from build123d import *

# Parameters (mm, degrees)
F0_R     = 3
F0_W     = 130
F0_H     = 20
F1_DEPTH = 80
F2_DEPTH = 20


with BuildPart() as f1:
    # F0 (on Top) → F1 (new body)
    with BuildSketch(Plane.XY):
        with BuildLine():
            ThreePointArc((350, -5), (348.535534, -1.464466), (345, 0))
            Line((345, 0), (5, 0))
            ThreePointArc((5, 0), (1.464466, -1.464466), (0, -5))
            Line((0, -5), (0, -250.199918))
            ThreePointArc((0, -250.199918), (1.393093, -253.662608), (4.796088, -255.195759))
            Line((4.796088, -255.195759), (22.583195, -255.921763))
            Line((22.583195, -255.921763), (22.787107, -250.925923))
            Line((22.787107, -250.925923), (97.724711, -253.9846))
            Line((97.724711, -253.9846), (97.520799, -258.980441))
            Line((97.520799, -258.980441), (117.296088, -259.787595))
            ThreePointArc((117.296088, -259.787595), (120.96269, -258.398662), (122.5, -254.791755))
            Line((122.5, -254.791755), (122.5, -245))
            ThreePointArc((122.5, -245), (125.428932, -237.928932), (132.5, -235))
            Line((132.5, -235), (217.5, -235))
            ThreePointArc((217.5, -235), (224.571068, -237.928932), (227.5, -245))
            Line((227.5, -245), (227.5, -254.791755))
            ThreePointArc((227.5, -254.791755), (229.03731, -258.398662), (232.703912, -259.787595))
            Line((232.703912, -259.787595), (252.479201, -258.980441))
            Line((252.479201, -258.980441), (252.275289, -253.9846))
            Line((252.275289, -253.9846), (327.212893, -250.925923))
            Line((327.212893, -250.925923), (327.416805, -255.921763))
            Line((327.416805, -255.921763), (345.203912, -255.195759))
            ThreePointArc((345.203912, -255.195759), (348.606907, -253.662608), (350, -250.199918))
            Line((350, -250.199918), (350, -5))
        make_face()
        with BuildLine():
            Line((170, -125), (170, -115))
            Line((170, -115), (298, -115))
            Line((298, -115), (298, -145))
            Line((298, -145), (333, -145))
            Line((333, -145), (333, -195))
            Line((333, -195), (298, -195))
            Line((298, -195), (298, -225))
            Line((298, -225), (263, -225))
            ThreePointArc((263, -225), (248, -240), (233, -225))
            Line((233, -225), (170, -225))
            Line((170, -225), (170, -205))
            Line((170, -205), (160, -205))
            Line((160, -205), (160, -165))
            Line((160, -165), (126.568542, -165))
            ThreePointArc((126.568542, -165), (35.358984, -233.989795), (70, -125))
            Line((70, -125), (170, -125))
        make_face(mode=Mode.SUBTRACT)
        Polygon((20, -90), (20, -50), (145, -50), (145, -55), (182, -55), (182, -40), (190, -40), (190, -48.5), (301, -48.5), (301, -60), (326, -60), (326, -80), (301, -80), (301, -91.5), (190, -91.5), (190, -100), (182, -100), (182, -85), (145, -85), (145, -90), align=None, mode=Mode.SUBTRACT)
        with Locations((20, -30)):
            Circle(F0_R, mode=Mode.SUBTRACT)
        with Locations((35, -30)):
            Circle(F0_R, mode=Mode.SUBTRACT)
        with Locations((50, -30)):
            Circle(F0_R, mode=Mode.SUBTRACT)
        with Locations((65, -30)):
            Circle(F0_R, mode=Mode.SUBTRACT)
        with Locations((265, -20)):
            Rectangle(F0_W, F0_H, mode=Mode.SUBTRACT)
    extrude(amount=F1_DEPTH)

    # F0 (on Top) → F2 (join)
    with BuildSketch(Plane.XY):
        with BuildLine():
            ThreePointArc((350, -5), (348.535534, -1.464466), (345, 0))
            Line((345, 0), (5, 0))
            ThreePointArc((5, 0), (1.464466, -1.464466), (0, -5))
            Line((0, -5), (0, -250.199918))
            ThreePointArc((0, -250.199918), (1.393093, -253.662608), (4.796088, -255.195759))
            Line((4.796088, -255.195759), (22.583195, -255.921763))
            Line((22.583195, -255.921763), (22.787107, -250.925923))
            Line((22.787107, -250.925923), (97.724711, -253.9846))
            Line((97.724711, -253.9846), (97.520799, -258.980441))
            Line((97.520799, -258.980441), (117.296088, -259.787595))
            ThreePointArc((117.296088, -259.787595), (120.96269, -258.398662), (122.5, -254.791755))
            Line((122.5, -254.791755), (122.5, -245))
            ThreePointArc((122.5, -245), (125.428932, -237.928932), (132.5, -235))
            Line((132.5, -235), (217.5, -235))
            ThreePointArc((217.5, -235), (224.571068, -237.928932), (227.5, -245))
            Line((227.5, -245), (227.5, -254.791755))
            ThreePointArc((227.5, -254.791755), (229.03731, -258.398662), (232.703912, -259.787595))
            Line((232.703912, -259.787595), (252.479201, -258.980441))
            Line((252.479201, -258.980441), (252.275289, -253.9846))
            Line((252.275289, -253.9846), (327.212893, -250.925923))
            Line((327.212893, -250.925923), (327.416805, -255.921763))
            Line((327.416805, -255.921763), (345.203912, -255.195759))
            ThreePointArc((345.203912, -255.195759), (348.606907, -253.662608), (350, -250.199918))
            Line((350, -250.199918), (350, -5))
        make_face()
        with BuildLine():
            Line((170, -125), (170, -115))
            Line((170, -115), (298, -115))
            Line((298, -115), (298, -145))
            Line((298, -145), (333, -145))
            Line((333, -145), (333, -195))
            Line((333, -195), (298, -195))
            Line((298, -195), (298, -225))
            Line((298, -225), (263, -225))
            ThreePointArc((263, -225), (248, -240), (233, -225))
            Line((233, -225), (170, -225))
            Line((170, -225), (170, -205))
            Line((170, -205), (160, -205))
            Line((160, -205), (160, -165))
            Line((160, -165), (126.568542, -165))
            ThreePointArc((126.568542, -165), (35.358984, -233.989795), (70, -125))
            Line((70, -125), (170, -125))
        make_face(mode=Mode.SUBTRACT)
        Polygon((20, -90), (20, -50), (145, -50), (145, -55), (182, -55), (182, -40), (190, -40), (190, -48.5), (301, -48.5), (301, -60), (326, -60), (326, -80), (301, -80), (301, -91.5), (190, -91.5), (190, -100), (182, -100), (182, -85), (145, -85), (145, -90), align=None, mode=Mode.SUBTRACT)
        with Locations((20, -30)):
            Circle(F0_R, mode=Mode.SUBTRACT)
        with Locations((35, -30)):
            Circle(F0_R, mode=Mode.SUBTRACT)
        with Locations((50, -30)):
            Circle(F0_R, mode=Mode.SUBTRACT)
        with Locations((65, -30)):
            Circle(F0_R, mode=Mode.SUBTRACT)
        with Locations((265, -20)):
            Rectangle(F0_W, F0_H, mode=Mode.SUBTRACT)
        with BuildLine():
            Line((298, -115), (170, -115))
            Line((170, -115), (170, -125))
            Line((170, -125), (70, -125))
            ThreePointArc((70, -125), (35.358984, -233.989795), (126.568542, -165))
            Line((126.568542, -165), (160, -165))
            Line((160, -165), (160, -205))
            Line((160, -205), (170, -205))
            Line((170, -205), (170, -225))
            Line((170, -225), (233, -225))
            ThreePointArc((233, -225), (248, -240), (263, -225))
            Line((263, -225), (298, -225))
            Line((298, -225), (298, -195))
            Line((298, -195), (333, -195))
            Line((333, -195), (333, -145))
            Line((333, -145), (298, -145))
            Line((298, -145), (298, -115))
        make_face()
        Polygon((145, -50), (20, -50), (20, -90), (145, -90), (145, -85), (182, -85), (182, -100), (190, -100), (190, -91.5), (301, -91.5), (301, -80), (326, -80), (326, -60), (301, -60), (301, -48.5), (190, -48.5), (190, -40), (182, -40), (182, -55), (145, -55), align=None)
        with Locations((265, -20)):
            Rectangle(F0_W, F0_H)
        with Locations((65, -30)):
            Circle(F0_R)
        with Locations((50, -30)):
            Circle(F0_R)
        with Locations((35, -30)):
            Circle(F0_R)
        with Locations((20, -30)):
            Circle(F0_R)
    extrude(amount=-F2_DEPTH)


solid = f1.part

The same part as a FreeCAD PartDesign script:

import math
import FreeCAD as App
import Part
import Sketcher

doc = App.newDocument("Part")
body = doc.addObject("PartDesign::Body", "Body")

# Sketch on XY plane
sketch1 = body.newObject("Sketcher::SketchObject", "Sketch")
sketch1.AttachmentSupport = (doc.getObject("XY_Plane"), [""])
sketch1.MapMode = "FlatFace"
sketch1.addGeometry([
    Part.ArcOfCircle(Part.Circle(App.Vector(345, -5, 0), App.Vector(0, 0, 1), 5), math.radians(-0.000004), math.radians(90.000004)),  # 0
    Part.LineSegment(App.Vector(345, 0, 0), App.Vector(5, 0, 0)),  # 1
    Part.ArcOfCircle(Part.Circle(App.Vector(5, -5, 0), App.Vector(0, 0, 1), 5), math.radians(89.999996), math.radians(180.000004)),  # 2
    Part.LineSegment(App.Vector(0, -5, 0), App.Vector(0, -250.199918, 0)),  # 3
    Part.ArcOfCircle(Part.Circle(App.Vector(5.000001, -250.199918, 0), App.Vector(0, 0, 1), 5.000001), math.radians(-179.999994), math.radians(-92.337322)),  # 4
    Part.LineSegment(App.Vector(4.796088, -255.195759, 0), App.Vector(22.583195, -255.921763, 0)),  # 5
    Part.LineSegment(App.Vector(22.583195, -255.921763, 0), App.Vector(22.787107, -250.925923, 0)),  # 6
    Part.LineSegment(App.Vector(22.787107, -250.925923, 0), App.Vector(97.724711, -253.9846, 0)),  # 7
    Part.LineSegment(App.Vector(97.724711, -253.9846, 0), App.Vector(97.520799, -258.980441, 0)),  # 8
    Part.LineSegment(App.Vector(97.520799, -258.980441, 0), App.Vector(117.296088, -259.787595, 0)),  # 9
    Part.ArcOfCircle(Part.Circle(App.Vector(117.5, -254.791755, 0), App.Vector(0, 0, 1), 5), math.radians(-92.337313), math.radians(0.000002)),  # 10
    Part.LineSegment(App.Vector(122.5, -254.791755, 0), App.Vector(122.5, -245, 0)),  # 11
    Part.ArcOfCircle(Part.Circle(App.Vector(132.499999, -244.999999, 0), App.Vector(0, 0, 1), 9.999999), math.radians(89.999996), math.radians(180.000004)),  # 12
    Part.LineSegment(App.Vector(132.5, -235, 0), App.Vector(217.5, -235, 0)),  # 13
    Part.ArcOfCircle(Part.Circle(App.Vector(217.500001, -244.999999, 0), App.Vector(0, 0, 1), 9.999999), math.radians(-0.000004), math.radians(90.000004)),  # 14
    Part.LineSegment(App.Vector(227.5, -245, 0), App.Vector(227.5, -254.791755, 0)),  # 15
    Part.ArcOfCircle(Part.Circle(App.Vector(232.5, -254.791755, 0), App.Vector(0, 0, 1), 5), math.radians(179.999998), math.radians(272.337313)),  # 16
    Part.LineSegment(App.Vector(232.703912, -259.787595, 0), App.Vector(252.479201, -258.980441, 0)),  # 17
    Part.LineSegment(App.Vector(252.479201, -258.980441, 0), App.Vector(252.275289, -253.9846, 0)),  # 18
    Part.LineSegment(App.Vector(252.275289, -253.9846, 0), App.Vector(327.212893, -250.925923, 0)),  # 19
    Part.LineSegment(App.Vector(327.212893, -250.925923, 0), App.Vector(327.416805, -255.921763, 0)),  # 20
    Part.LineSegment(App.Vector(327.416805, -255.921763, 0), App.Vector(345.203912, -255.195759, 0)),  # 21
    Part.ArcOfCircle(Part.Circle(App.Vector(344.999999, -250.199918, 0), App.Vector(0, 0, 1), 5.000001), math.radians(-87.662678), math.radians(-0.000006)),  # 22
    Part.LineSegment(App.Vector(350, -250.199918, 0), App.Vector(350, -5, 0)),  # 23
    Part.LineSegment(App.Vector(70, -125, 0), App.Vector(170, -125, 0)),  # 24
    Part.LineSegment(App.Vector(170, -125, 0), App.Vector(170, -115, 0)),  # 25
    Part.LineSegment(App.Vector(170, -115, 0), App.Vector(298, -115, 0)),  # 26
    Part.LineSegment(App.Vector(298, -115, 0), App.Vector(298, -145, 0)),  # 27
    Part.LineSegment(App.Vector(298, -145, 0), App.Vector(333, -145, 0)),  # 28
    Part.LineSegment(App.Vector(333, -145, 0), App.Vector(333, -195, 0)),  # 29
    Part.LineSegment(App.Vector(333, -195, 0), App.Vector(298, -195, 0)),  # 30
    Part.LineSegment(App.Vector(298, -195, 0), App.Vector(298, -225, 0)),  # 31
    Part.LineSegment(App.Vector(298, -225, 0), App.Vector(263, -225, 0)),  # 32
    Part.ArcOfCircle(Part.Circle(App.Vector(248, -225, 0), App.Vector(0, 0, 1), 15), math.radians(180), math.radians(360)),  # 33
    Part.LineSegment(App.Vector(233, -225, 0), App.Vector(170, -225, 0)),  # 34
    Part.LineSegment(App.Vector(170, -225, 0), App.Vector(170, -205, 0)),  # 35
    Part.LineSegment(App.Vector(170, -205, 0), App.Vector(160, -205, 0)),  # 36
    Part.LineSegment(App.Vector(160, -205, 0), App.Vector(160, -165, 0)),  # 37
    Part.LineSegment(App.Vector(160, -165, 0), App.Vector(126.568542, -165, 0)),  # 38
    Part.ArcOfCircle(Part.Circle(App.Vector(70, -185, 0), App.Vector(0, 0, 1), 60), math.radians(90), math.radians(379.471221)),  # 39
    Part.Circle(App.Vector(20, -30, 0), App.Vector(0, 0, 1), 3),  # 40
    Part.Circle(App.Vector(35, -30, 0), App.Vector(0, 0, 1), 3),  # 41
    Part.Circle(App.Vector(50, -30, 0), App.Vector(0, 0, 1), 3),  # 42
    Part.Circle(App.Vector(65, -30, 0), App.Vector(0, 0, 1), 3),  # 43
    Part.LineSegment(App.Vector(145, -90, 0), App.Vector(20, -90, 0)),  # 44
    Part.LineSegment(App.Vector(20, -90, 0), App.Vector(20, -50, 0)),  # 45
    Part.LineSegment(App.Vector(20, -50, 0), App.Vector(145, -50, 0)),  # 46
    Part.LineSegment(App.Vector(145, -50, 0), App.Vector(145, -55, 0)),  # 47
    Part.LineSegment(App.Vector(145, -55, 0), App.Vector(182, -55, 0)),  # 48
    Part.LineSegment(App.Vector(182, -55, 0), App.Vector(182, -40, 0)),  # 49
    Part.LineSegment(App.Vector(182, -40, 0), App.Vector(190, -40, 0)),  # 50
    Part.LineSegment(App.Vector(190, -40, 0), App.Vector(190, -48.5, 0)),  # 51
    Part.LineSegment(App.Vector(190, -48.5, 0), App.Vector(301, -48.5, 0)),  # 52
    Part.LineSegment(App.Vector(301, -48.5, 0), App.Vector(301, -60, 0)),  # 53
    Part.LineSegment(App.Vector(301, -60, 0), App.Vector(326, -60, 0)),  # 54
    Part.LineSegment(App.Vector(326, -60, 0), App.Vector(326, -80, 0)),  # 55
    Part.LineSegment(App.Vector(326, -80, 0), App.Vector(301, -80, 0)),  # 56
    Part.LineSegment(App.Vector(301, -80, 0), App.Vector(301, -91.5, 0)),  # 57
    Part.LineSegment(App.Vector(301, -91.5, 0), App.Vector(190, -91.5, 0)),  # 58
    Part.LineSegment(App.Vector(190, -91.5, 0), App.Vector(190, -100, 0)),  # 59
    Part.LineSegment(App.Vector(190, -100, 0), App.Vector(182, -100, 0)),  # 60
    Part.LineSegment(App.Vector(182, -100, 0), App.Vector(182, -85, 0)),  # 61
    Part.LineSegment(App.Vector(182, -85, 0), App.Vector(145, -85, 0)),  # 62
    Part.LineSegment(App.Vector(145, -85, 0), App.Vector(145, -90, 0)),  # 63
    Part.LineSegment(App.Vector(330, -30, 0), App.Vector(200, -30, 0)),  # 64
    Part.LineSegment(App.Vector(200, -30, 0), App.Vector(200, -10, 0)),  # 65
    Part.LineSegment(App.Vector(200, -10, 0), App.Vector(330, -10, 0)),  # 66
    Part.LineSegment(App.Vector(330, -10, 0), App.Vector(330, -30, 0)),  # 67
], False)
sketch1.addConstraint([
    Sketcher.Constraint("Tangent", 0, 2, 1, 1),
    Sketcher.Constraint("Tangent", 1, 2, 2, 1),
    Sketcher.Constraint("Tangent", 2, 2, 3, 1),
    Sketcher.Constraint("Tangent", 3, 2, 4, 1),
    Sketcher.Constraint("Tangent", 4, 2, 5, 1),
    Sketcher.Constraint("Coincident", 5, 2, 6, 1),
    Sketcher.Constraint("Coincident", 6, 2, 7, 1),
    Sketcher.Constraint("Coincident", 7, 2, 8, 1),
    Sketcher.Constraint("Coincident", 8, 2, 9, 1),
    Sketcher.Constraint("Tangent", 9, 2, 10, 1),
    Sketcher.Constraint("Tangent", 10, 2, 11, 1),
    Sketcher.Constraint("Tangent", 11, 2, 12, 2),
    Sketcher.Constraint("Tangent", 12, 1, 13, 1),
    Sketcher.Constraint("Tangent", 13, 2, 14, 2),
    Sketcher.Constraint("Tangent", 14, 1, 15, 1),
    Sketcher.Constraint("Tangent", 15, 2, 16, 1),
    Sketcher.Constraint("Tangent", 16, 2, 17, 1),
    Sketcher.Constraint("Coincident", 17, 2, 18, 1),
    Sketcher.Constraint("Coincident", 18, 2, 19, 1),
    Sketcher.Constraint("Coincident", 19, 2, 20, 1),
    Sketcher.Constraint("Coincident", 20, 2, 21, 1),
    Sketcher.Constraint("Tangent", 21, 2, 22, 1),
    Sketcher.Constraint("Tangent", 22, 2, 23, 1),
    Sketcher.Constraint("Tangent", 23, 2, 0, 1),
    Sketcher.Constraint("Coincident", 24, 2, 25, 1),
    Sketcher.Constraint("Coincident", 25, 2, 26, 1),
    Sketcher.Constraint("Coincident", 26, 2, 27, 1),
    Sketcher.Constraint("Coincident", 27, 2, 28, 1),
    Sketcher.Constraint("Coincident", 28, 2, 29, 1),
    Sketcher.Constraint("Coincident", 29, 2, 30, 1),
    Sketcher.Constraint("Coincident", 30, 2, 31, 1),
    Sketcher.Constraint("Coincident", 31, 2, 32, 1),
    Sketcher.Constraint("Coincident", 32, 2, 33, 2),
    Sketcher.Constraint("Coincident", 33, 1, 34, 1),
    Sketcher.Constraint("Coincident", 34, 2, 35, 1),
    Sketcher.Constraint("Coincident", 35, 2, 36, 1),
    Sketcher.Constraint("Coincident", 36, 2, 37, 1),
    Sketcher.Constraint("Coincident", 37, 2, 38, 1),
    Sketcher.Constraint("Coincident", 38, 2, 39, 2),
    Sketcher.Constraint("Tangent", 39, 1, 24, 1),
    Sketcher.Constraint("Coincident", 44, 2, 45, 1),
    Sketcher.Constraint("Coincident", 45, 2, 46, 1),
    Sketcher.Constraint("Coincident", 46, 2, 47, 1),
    Sketcher.Constraint("Coincident", 47, 2, 48, 1),
    Sketcher.Constraint("Coincident", 48, 2, 49, 1),
    Sketcher.Constraint("Coincident", 49, 2, 50, 1),
    Sketcher.Constraint("Coincident", 50, 2, 51, 1),
    Sketcher.Constraint("Coincident", 51, 2, 52, 1),
    Sketcher.Constraint("Coincident", 52, 2, 53, 1),
    Sketcher.Constraint("Coincident", 53, 2, 54, 1),
    Sketcher.Constraint("Coincident", 54, 2, 55, 1),
    Sketcher.Constraint("Coincident", 55, 2, 56, 1),
    Sketcher.Constraint("Coincident", 56, 2, 57, 1),
    Sketcher.Constraint("Coincident", 57, 2, 58, 1),
    Sketcher.Constraint("Coincident", 58, 2, 59, 1),
    Sketcher.Constraint("Coincident", 59, 2, 60, 1),
    Sketcher.Constraint("Coincident", 60, 2, 61, 1),
    Sketcher.Constraint("Coincident", 61, 2, 62, 1),
    Sketcher.Constraint("Coincident", 62, 2, 63, 1),
    Sketcher.Constraint("Coincident", 63, 2, 44, 1),
    Sketcher.Constraint("Coincident", 64, 2, 65, 1),
    Sketcher.Constraint("Coincident", 65, 2, 66, 1),
    Sketcher.Constraint("Coincident", 66, 2, 67, 1),
    Sketcher.Constraint("Coincident", 67, 2, 64, 1),
    Sketcher.Constraint("Horizontal", 1),
    Sketcher.Constraint("Vertical", 3),
    Sketcher.Constraint("Vertical", 11),
    Sketcher.Constraint("Horizontal", 13),
    Sketcher.Constraint("Vertical", 15),
    Sketcher.Constraint("Vertical", 23),
    Sketcher.Constraint("Horizontal", 24),
    Sketcher.Constraint("Vertical", 25),
    Sketcher.Constraint("Horizontal", 26),
    Sketcher.Constraint("Vertical", 27),
    Sketcher.Constraint("Horizontal", 28),
    Sketcher.Constraint("Vertical", 29),
    Sketcher.Constraint("Horizontal", 30),
    Sketcher.Constraint("Vertical", 31),
    Sketcher.Constraint("Horizontal", 32),
    Sketcher.Constraint("Horizontal", 34),
    Sketcher.Constraint("Vertical", 35),
    Sketcher.Constraint("Horizontal", 36),
    Sketcher.Constraint("Vertical", 37),
    Sketcher.Constraint("Horizontal", 38),
    Sketcher.Constraint("Horizontal", 44),
    Sketcher.Constraint("Vertical", 45),
    Sketcher.Constraint("Horizontal", 46),
    Sketcher.Constraint("Vertical", 47),
    Sketcher.Constraint("Horizontal", 48),
    Sketcher.Constraint("Vertical", 49),
    Sketcher.Constraint("Horizontal", 50),
    Sketcher.Constraint("Vertical", 51),
    Sketcher.Constraint("Horizontal", 52),
    Sketcher.Constraint("Vertical", 53),
    Sketcher.Constraint("Horizontal", 54),
    Sketcher.Constraint("Vertical", 55),
    Sketcher.Constraint("Horizontal", 56),
    Sketcher.Constraint("Vertical", 57),
    Sketcher.Constraint("Horizontal", 58),
    Sketcher.Constraint("Vertical", 59),
    Sketcher.Constraint("Horizontal", 60),
    Sketcher.Constraint("Vertical", 61),
    Sketcher.Constraint("Horizontal", 62),
    Sketcher.Constraint("Vertical", 63),
    Sketcher.Constraint("Horizontal", 64),
    Sketcher.Constraint("Vertical", 65),
    Sketcher.Constraint("Horizontal", 66),
    Sketcher.Constraint("Vertical", 67),
    Sketcher.Constraint("Equal", 0, 2),
    Sketcher.Constraint("Equal", 2, 4),
    Sketcher.Constraint("Equal", 4, 10),
    Sketcher.Constraint("Equal", 12, 14),
    Sketcher.Constraint("Equal", 10, 16),
    Sketcher.Constraint("Equal", 16, 22),
    Sketcher.Constraint("Equal", 40, 41),
    Sketcher.Constraint("Equal", 41, 42),
    Sketcher.Constraint("Equal", 42, 43),
    Sketcher.Constraint("PointOnObject", 0, 2, -1),
    Sketcher.Constraint("PointOnObject", 2, 2, -2),
    Sketcher.Constraint("Perpendicular", 5, 6),
    Sketcher.Constraint("Perpendicular", 6, 7),
    Sketcher.Constraint("Perpendicular", 7, 8),
    Sketcher.Constraint("Perpendicular", 8, 9),
    Sketcher.Constraint("Perpendicular", 17, 18),
    Sketcher.Constraint("Perpendicular", 18, 19),
    Sketcher.Constraint("Perpendicular", 19, 20),
    Sketcher.Constraint("Perpendicular", 20, 21),
    Sketcher.Constraint("Horizontal", 10, 3, 16, 3),
    Sketcher.Constraint("Horizontal", 4, 3, 22, 3),
    Sketcher.Constraint("Horizontal", 40, 3, 41, 3),
    Sketcher.Constraint("Horizontal", 41, 3, 42, 3),
    Sketcher.Constraint("Horizontal", 42, 3, 43, 3),
    Sketcher.Constraint("Horizontal", 8, 2, 17, 2),
    Sketcher.Constraint("Horizontal", 7, 2, 18, 2),
    Sketcher.Constraint("Horizontal", 6, 2, 19, 2),
    Sketcher.Constraint("Horizontal", 5, 2, 20, 2),
    Sketcher.Constraint("Horizontal", 33, 3, 31, 2),
    Sketcher.Constraint("Horizontal", 32, 2, 33, 1),
    Sketcher.Constraint("Horizontal", 43, 3, 64, 2),
    Sketcher.Constraint("Vertical", 27, 2, 30, 2),
    Sketcher.Constraint("Vertical", 25, 2, 34, 2),
    Sketcher.Constraint("Vertical", 40, 3, 44, 2),
    Sketcher.Constraint("Vertical", 53, 2, 56, 2),
    Sketcher.Constraint("Vertical", 51, 2, 58, 2),
    Sketcher.Constraint("Vertical", 49, 2, 60, 2),
    Sketcher.Constraint("Vertical", 47, 2, 62, 2),
    Sketcher.Constraint("Equal", 30, 32),
    Sketcher.Constraint("Equal", 36, 25),
    Sketcher.Constraint("Equal", 27, 31),
    Sketcher.Constraint("Equal", 37, 45),
    Sketcher.Constraint("Equal", 35, 55),
    Sketcher.Constraint("Equal", 53, 57),
    Sketcher.Constraint("Equal", 51, 59),
    Sketcher.Constraint("Equal", 49, 61),
    Sketcher.Constraint("Equal", 47, 63),
    Sketcher.Constraint("Equal", 55, 65),
    Sketcher.Constraint("Equal", 6, 8),
    Sketcher.Constraint("Equal", 9, 17),
    Sketcher.Constraint("Diameter", 40, 6.0),
    Sketcher.Constraint("Radius", 0, 5.0),
    Sketcher.Constraint("Radius", 12, 9.999999),
    Sketcher.Constraint("Radius", 33, 15.0),
    Sketcher.Constraint("Radius", 39, 60.0),
    Sketcher.Constraint("DistanceX", 1, 2, 1, 1, 340.0),
    Sketcher.Constraint("DistanceX", 13, 1, 13, 2, 85.0),
    Sketcher.Constraint("DistanceX", 24, 1, 24, 2, 100.0),
    Sketcher.Constraint("DistanceX", 26, 1, 26, 2, 128.0),
    Sketcher.Constraint("DistanceX", 28, 1, 28, 2, 35.0),
    Sketcher.Constraint("DistanceX", 36, 2, 36, 1, 10.0),
    Sketcher.Constraint("DistanceX", 44, 2, 44, 1, 125.0),
    Sketcher.Constraint("DistanceX", 48, 1, 48, 2, 37.0),
    Sketcher.Constraint("DistanceX", 50, 1, 50, 2, 8.0),
    Sketcher.Constraint("DistanceX", 52, 1, 52, 2, 111.0),
    Sketcher.Constraint("DistanceX", 54, 1, 54, 2, 25.0),
    Sketcher.Constraint("DistanceX", 64, 2, 64, 1, 130.0),
    Sketcher.Constraint("DistanceY", 27, 2, 27, 1, 30.0),
    Sketcher.Constraint("DistanceY", 29, 2, 29, 1, 50.0),
    Sketcher.Constraint("DistanceY", 35, 1, 35, 2, 20.0),
    Sketcher.Constraint("DistanceY", 37, 1, 37, 2, 40.0),
    Sketcher.Constraint("DistanceY", 47, 2, 47, 1, 5.0),
    Sketcher.Constraint("DistanceY", 49, 1, 49, 2, 15.0),
    Sketcher.Constraint("Distance", 6, 5.0),
    Sketcher.Constraint("Distance", 7, 75.0),
    Sketcher.Constraint("DistanceY", 51, 2, 51, 1, 8.5),
    Sketcher.Constraint("DistanceY", 12, 3, -1, 1, 244.999999),
    Sketcher.Constraint("DistanceX", -1, 1, 33, 3, 248.0),
    Sketcher.Constraint("DistanceY", 33, 3, -1, 1, 225.0),
    Sketcher.Constraint("DistanceX", -1, 1, 40, 3, 20.0),
    Sketcher.Constraint("DistanceY", 40, 3, -1, 1, 30.0),
    Sketcher.Constraint("DistanceX", -1, 1, 41, 3, 35.0),
    Sketcher.Constraint("DistanceX", -1, 1, 42, 3, 50.0),
    Sketcher.Constraint("DistanceX", -1, 1, 43, 3, 65.0),
    Sketcher.Constraint("DistanceY", 44, 2, -1, 1, 90.0),
    Sketcher.Constraint("DistanceX", -1, 1, 64, 2, 200.0),
    Sketcher.Constraint("DistanceY", 3, 2, 3, 1, 245.199918),
    Sketcher.Constraint("DistanceY", 7, 2, -1, 1, 253.9846),
    Sketcher.Constraint("DistanceX", -1, 1, 8, 2, 97.520799),
])
pad1 = body.newObject("PartDesign::Pad", "Pad")
pad1.Profile = sketch1
pad1.Length = 80

# Sketch on XY plane
sketch2 = body.newObject("Sketcher::SketchObject", "Sketch001")
sketch2.AttachmentSupport = (doc.getObject("XY_Plane"), [""])
sketch2.MapMode = "FlatFace"
sketch2.addGeometry([
    Part.ArcOfCircle(Part.Circle(App.Vector(345, -5, 0), App.Vector(0, 0, 1), 5), math.radians(-0.000004), math.radians(90.000004)),  # 0
    Part.LineSegment(App.Vector(345, 0, 0), App.Vector(5, 0, 0)),  # 1
    Part.ArcOfCircle(Part.Circle(App.Vector(5, -5, 0), App.Vector(0, 0, 1), 5), math.radians(89.999996), math.radians(180.000004)),  # 2
    Part.LineSegment(App.Vector(0, -5, 0), App.Vector(0, -250.199918, 0)),  # 3
    Part.ArcOfCircle(Part.Circle(App.Vector(5.000001, -250.199918, 0), App.Vector(0, 0, 1), 5.000001), math.radians(-179.999994), math.radians(-92.337322)),  # 4
    Part.LineSegment(App.Vector(4.796088, -255.195759, 0), App.Vector(22.583195, -255.921763, 0)),  # 5
    Part.LineSegment(App.Vector(22.583195, -255.921763, 0), App.Vector(22.787107, -250.925923, 0)),  # 6
    Part.LineSegment(App.Vector(22.787107, -250.925923, 0), App.Vector(97.724711, -253.9846, 0)),  # 7
    Part.LineSegment(App.Vector(97.724711, -253.9846, 0), App.Vector(97.520799, -258.980441, 0)),  # 8
    Part.LineSegment(App.Vector(97.520799, -258.980441, 0), App.Vector(117.296088, -259.787595, 0)),  # 9
    Part.ArcOfCircle(Part.Circle(App.Vector(117.5, -254.791755, 0), App.Vector(0, 0, 1), 5), math.radians(-92.337313), math.radians(0.000002)),  # 10
    Part.LineSegment(App.Vector(122.5, -254.791755, 0), App.Vector(122.5, -245, 0)),  # 11
    Part.ArcOfCircle(Part.Circle(App.Vector(132.499999, -244.999999, 0), App.Vector(0, 0, 1), 9.999999), math.radians(89.999996), math.radians(180.000004)),  # 12
    Part.LineSegment(App.Vector(132.5, -235, 0), App.Vector(217.5, -235, 0)),  # 13
    Part.ArcOfCircle(Part.Circle(App.Vector(217.500001, -244.999999, 0), App.Vector(0, 0, 1), 9.999999), math.radians(-0.000004), math.radians(90.000004)),  # 14
    Part.LineSegment(App.Vector(227.5, -245, 0), App.Vector(227.5, -254.791755, 0)),  # 15
    Part.ArcOfCircle(Part.Circle(App.Vector(232.5, -254.791755, 0), App.Vector(0, 0, 1), 5), math.radians(179.999998), math.radians(272.337313)),  # 16
    Part.LineSegment(App.Vector(232.703912, -259.787595, 0), App.Vector(252.479201, -258.980441, 0)),  # 17
    Part.LineSegment(App.Vector(252.479201, -258.980441, 0), App.Vector(252.275289, -253.9846, 0)),  # 18
    Part.LineSegment(App.Vector(252.275289, -253.9846, 0), App.Vector(327.212893, -250.925923, 0)),  # 19
    Part.LineSegment(App.Vector(327.212893, -250.925923, 0), App.Vector(327.416805, -255.921763, 0)),  # 20
    Part.LineSegment(App.Vector(327.416805, -255.921763, 0), App.Vector(345.203912, -255.195759, 0)),  # 21
    Part.ArcOfCircle(Part.Circle(App.Vector(344.999999, -250.199918, 0), App.Vector(0, 0, 1), 5.000001), math.radians(-87.662678), math.radians(-0.000006)),  # 22
    Part.LineSegment(App.Vector(350, -250.199918, 0), App.Vector(350, -5, 0)),  # 23
], False)
sketch2.addConstraint([
    Sketcher.Constraint("Tangent", 0, 2, 1, 1),
    Sketcher.Constraint("Tangent", 1, 2, 2, 1),
    Sketcher.Constraint("Tangent", 2, 2, 3, 1),
    Sketcher.Constraint("Tangent", 3, 2, 4, 1),
    Sketcher.Constraint("Tangent", 4, 2, 5, 1),
    Sketcher.Constraint("Coincident", 5, 2, 6, 1),
    Sketcher.Constraint("Coincident", 6, 2, 7, 1),
    Sketcher.Constraint("Coincident", 7, 2, 8, 1),
    Sketcher.Constraint("Coincident", 8, 2, 9, 1),
    Sketcher.Constraint("Tangent", 9, 2, 10, 1),
    Sketcher.Constraint("Tangent", 10, 2, 11, 1),
    Sketcher.Constraint("Tangent", 11, 2, 12, 2),
    Sketcher.Constraint("Tangent", 12, 1, 13, 1),
    Sketcher.Constraint("Tangent", 13, 2, 14, 2),
    Sketcher.Constraint("Tangent", 14, 1, 15, 1),
    Sketcher.Constraint("Tangent", 15, 2, 16, 1),
    Sketcher.Constraint("Tangent", 16, 2, 17, 1),
    Sketcher.Constraint("Coincident", 17, 2, 18, 1),
    Sketcher.Constraint("Coincident", 18, 2, 19, 1),
    Sketcher.Constraint("Coincident", 19, 2, 20, 1),
    Sketcher.Constraint("Coincident", 20, 2, 21, 1),
    Sketcher.Constraint("Tangent", 21, 2, 22, 1),
    Sketcher.Constraint("Tangent", 22, 2, 23, 1),
    Sketcher.Constraint("Tangent", 23, 2, 0, 1),
    Sketcher.Constraint("Horizontal", 1),
    Sketcher.Constraint("Vertical", 3),
    Sketcher.Constraint("Vertical", 11),
    Sketcher.Constraint("Horizontal", 13),
    Sketcher.Constraint("Vertical", 15),
    Sketcher.Constraint("Vertical", 23),
    Sketcher.Constraint("Equal", 0, 2),
    Sketcher.Constraint("Equal", 2, 4),
    Sketcher.Constraint("Equal", 4, 10),
    Sketcher.Constraint("Equal", 12, 14),
    Sketcher.Constraint("Equal", 10, 16),
    Sketcher.Constraint("Equal", 16, 22),
    Sketcher.Constraint("PointOnObject", 0, 2, -1),
    Sketcher.Constraint("PointOnObject", 2, 2, -2),
    Sketcher.Constraint("Perpendicular", 5, 6),
    Sketcher.Constraint("Perpendicular", 6, 7),
    Sketcher.Constraint("Perpendicular", 7, 8),
    Sketcher.Constraint("Perpendicular", 8, 9),
    Sketcher.Constraint("Perpendicular", 17, 18),
    Sketcher.Constraint("Perpendicular", 18, 19),
    Sketcher.Constraint("Perpendicular", 19, 20),
    Sketcher.Constraint("Perpendicular", 20, 21),
    Sketcher.Constraint("Horizontal", 10, 3, 16, 3),
    Sketcher.Constraint("Horizontal", 4, 3, 22, 3),
    Sketcher.Constraint("Horizontal", 8, 2, 17, 2),
    Sketcher.Constraint("Horizontal", 7, 2, 18, 2),
    Sketcher.Constraint("Horizontal", 6, 2, 19, 2),
    Sketcher.Constraint("Horizontal", 5, 2, 20, 2),
    Sketcher.Constraint("Equal", 6, 8),
    Sketcher.Constraint("Equal", 9, 17),
    Sketcher.Constraint("Radius", 0, 5.0),
    Sketcher.Constraint("Radius", 12, 9.999999),
    Sketcher.Constraint("DistanceX", 1, 2, 1, 1, 340.0),
    Sketcher.Constraint("DistanceX", 13, 1, 13, 2, 85.0),
    Sketcher.Constraint("Distance", 6, 5.0),
    Sketcher.Constraint("Distance", 7, 75.0),
    Sketcher.Constraint("DistanceY", 12, 3, -1, 1, 244.999999),
    Sketcher.Constraint("DistanceY", 3, 2, 3, 1, 245.199918),
    Sketcher.Constraint("DistanceY", 7, 2, -1, 1, 253.9846),
    Sketcher.Constraint("DistanceX", -1, 1, 8, 2, 97.520799),
])
pad2 = body.newObject("PartDesign::Pad", "Pad001")
pad2.Profile = sketch2
pad2.Length = 20
pad2.Reversed = True

doc.recompute()
